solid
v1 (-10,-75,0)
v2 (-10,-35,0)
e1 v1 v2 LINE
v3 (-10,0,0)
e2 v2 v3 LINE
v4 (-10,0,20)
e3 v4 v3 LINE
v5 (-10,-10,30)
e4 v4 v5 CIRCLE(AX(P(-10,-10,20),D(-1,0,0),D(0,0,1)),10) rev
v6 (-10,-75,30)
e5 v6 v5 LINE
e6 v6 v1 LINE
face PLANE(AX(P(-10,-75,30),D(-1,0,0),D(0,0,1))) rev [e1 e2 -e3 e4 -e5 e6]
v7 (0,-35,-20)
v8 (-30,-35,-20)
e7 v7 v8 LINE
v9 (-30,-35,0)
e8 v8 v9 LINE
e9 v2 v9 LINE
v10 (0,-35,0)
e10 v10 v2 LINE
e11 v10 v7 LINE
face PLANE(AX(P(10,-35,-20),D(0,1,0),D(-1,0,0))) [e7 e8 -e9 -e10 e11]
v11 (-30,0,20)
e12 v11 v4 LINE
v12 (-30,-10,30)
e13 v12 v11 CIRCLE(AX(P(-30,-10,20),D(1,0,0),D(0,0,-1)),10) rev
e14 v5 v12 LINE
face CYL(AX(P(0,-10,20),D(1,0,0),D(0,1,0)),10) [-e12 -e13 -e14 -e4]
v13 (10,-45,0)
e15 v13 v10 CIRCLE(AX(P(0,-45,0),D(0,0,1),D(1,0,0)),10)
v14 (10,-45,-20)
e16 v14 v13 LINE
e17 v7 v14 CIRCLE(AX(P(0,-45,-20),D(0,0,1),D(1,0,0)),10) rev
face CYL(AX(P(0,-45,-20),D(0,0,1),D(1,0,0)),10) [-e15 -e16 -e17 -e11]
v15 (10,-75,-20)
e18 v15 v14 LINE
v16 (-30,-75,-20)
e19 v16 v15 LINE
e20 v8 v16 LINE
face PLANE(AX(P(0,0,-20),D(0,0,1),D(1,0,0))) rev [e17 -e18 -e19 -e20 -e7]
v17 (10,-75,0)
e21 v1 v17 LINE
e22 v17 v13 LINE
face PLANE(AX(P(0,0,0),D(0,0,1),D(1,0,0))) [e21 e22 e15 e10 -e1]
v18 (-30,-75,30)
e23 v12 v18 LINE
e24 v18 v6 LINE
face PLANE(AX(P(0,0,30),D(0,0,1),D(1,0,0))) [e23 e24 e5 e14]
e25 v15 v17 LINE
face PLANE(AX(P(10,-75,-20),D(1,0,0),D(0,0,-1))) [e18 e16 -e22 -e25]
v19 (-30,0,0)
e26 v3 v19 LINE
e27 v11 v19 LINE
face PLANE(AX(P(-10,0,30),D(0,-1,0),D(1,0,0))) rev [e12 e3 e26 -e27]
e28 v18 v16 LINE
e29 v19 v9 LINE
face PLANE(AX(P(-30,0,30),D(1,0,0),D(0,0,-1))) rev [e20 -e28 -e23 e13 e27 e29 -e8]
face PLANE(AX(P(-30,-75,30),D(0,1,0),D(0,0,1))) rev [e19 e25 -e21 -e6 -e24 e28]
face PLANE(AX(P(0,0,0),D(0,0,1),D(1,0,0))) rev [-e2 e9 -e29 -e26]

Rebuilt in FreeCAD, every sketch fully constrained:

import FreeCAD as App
import Part
import Sketcher
Q = App.Units.Quantity


def edges_at(feature, points):
    """Names of the edges that pass closest to the given points."""
    edges = feature.Shape.Edges
    near = lambda p: min(range(len(edges)), key=lambda i: edges[i].distToShape(Part.Vertex(*p))[0])
    return sorted({f"Edge{near(p) + 1}" for p in points})


def add_polygon(sketch, points):
    """Adds a closed chain of lines whose ends are joined by coincident constraints."""
    first, n = sketch.GeometryCount, len(points)
    for a, b in zip(points, points[1:] + points[:1]):
        sketch.addGeometry(Part.LineSegment(App.Vector(*a, 0), App.Vector(*b, 0)), False)
    for i in range(n):
        sketch.addConstraint(Sketcher.Constraint("Coincident", first + i, 2, first + (i + 1) % n, 1))

doc = App.newDocument("Part")
body = doc.addObject("PartDesign::Body", "Body")

# Sketch on XY plane
sketch1 = doc.addObject("Sketcher::SketchObject", "Sketch")
body.addObject(sketch1)
sketch1.AttachmentSupport = (doc.XY_Plane, [""])
sketch1.MapMode = "FlatFace"
add_polygon(sketch1, [(-30, 0), (-30, -75), (-10, -75), (-10, 0)])  # lines 0-3
sketch1.addConstraint(Sketcher.Constraint("Vertical", 0))
sketch1.addConstraint(Sketcher.Constraint("Horizontal", 1))
sketch1.addConstraint(Sketcher.Constraint("Vertical", 2))
sketch1.addConstraint(Sketcher.Constraint("Horizontal", 3))
sketch1.addConstraint(Sketcher.Constraint("PointOnObject", 2, 2, -1))
sketch1.addConstraint(Sketcher.Constraint("DistanceX", 1, 1, 1, 2, Q("20 mm")))
sketch1.addConstraint(Sketcher.Constraint("DistanceY", 0, 2, 0, 1, Q("75 mm")))
sketch1.addConstraint(Sketcher.Constraint("DistanceX", 0, 2, -1, 1, Q("30 mm")))
pad1 = doc.addObject("PartDesign::Pad", "Pad")
body.addObject(pad1)
pad1.Profile = sketch1
pad1.Length = 30

# Sketch on XY plane
sketch2 = doc.addObject("Sketcher::SketchObject", "Sketch001")
body.addObject(sketch2)
sketch2.AttachmentSupport = (doc.XY_Plane, [""])
sketch2.MapMode = "FlatFace"
add_polygon(sketch2, [(-30, -35), (-30, -75), (10, -75), (10, -35)])  # lines 0-3
sketch2.addConstraint(Sketcher.Constraint("Vertical", 0))
sketch2.addConstraint(Sketcher.Constraint("Horizontal", 1))
sketch2.addConstraint(Sketcher.Constraint("Vertical", 2))
sketch2.addConstraint(Sketcher.Constraint("Horizontal", 3))
sketch2.addConstraint(Sketcher.Constraint("Equal", 3, 0))
sketch2.addConstraint(Sketcher.Constraint("DistanceX", 1, 1, 1, 2, Q("40 mm")))
sketch2.addConstraint(Sketcher.Constraint("DistanceX", 0, 2, -1, 1, Q("30 mm")))
sketch2.addConstraint(Sketcher.Constraint("DistanceY", 0, 2, -1, 1, Q("75 mm")))
pad2 = doc.addObject("PartDesign::Pad", "Pad001")
body.addObject(pad2)
pad2.Profile = sketch2
pad2.Length = 20
pad2.Reversed = True
doc.recompute()

fillet = doc.addObject("PartDesign::Fillet", "Fillet")
body.addObject(fillet)
fillet.Base = (pad2, edges_at(pad2, [(10, -35, -10), (-20, 0, 30)]))
fillet.Radius = 10

doc.recompute()
